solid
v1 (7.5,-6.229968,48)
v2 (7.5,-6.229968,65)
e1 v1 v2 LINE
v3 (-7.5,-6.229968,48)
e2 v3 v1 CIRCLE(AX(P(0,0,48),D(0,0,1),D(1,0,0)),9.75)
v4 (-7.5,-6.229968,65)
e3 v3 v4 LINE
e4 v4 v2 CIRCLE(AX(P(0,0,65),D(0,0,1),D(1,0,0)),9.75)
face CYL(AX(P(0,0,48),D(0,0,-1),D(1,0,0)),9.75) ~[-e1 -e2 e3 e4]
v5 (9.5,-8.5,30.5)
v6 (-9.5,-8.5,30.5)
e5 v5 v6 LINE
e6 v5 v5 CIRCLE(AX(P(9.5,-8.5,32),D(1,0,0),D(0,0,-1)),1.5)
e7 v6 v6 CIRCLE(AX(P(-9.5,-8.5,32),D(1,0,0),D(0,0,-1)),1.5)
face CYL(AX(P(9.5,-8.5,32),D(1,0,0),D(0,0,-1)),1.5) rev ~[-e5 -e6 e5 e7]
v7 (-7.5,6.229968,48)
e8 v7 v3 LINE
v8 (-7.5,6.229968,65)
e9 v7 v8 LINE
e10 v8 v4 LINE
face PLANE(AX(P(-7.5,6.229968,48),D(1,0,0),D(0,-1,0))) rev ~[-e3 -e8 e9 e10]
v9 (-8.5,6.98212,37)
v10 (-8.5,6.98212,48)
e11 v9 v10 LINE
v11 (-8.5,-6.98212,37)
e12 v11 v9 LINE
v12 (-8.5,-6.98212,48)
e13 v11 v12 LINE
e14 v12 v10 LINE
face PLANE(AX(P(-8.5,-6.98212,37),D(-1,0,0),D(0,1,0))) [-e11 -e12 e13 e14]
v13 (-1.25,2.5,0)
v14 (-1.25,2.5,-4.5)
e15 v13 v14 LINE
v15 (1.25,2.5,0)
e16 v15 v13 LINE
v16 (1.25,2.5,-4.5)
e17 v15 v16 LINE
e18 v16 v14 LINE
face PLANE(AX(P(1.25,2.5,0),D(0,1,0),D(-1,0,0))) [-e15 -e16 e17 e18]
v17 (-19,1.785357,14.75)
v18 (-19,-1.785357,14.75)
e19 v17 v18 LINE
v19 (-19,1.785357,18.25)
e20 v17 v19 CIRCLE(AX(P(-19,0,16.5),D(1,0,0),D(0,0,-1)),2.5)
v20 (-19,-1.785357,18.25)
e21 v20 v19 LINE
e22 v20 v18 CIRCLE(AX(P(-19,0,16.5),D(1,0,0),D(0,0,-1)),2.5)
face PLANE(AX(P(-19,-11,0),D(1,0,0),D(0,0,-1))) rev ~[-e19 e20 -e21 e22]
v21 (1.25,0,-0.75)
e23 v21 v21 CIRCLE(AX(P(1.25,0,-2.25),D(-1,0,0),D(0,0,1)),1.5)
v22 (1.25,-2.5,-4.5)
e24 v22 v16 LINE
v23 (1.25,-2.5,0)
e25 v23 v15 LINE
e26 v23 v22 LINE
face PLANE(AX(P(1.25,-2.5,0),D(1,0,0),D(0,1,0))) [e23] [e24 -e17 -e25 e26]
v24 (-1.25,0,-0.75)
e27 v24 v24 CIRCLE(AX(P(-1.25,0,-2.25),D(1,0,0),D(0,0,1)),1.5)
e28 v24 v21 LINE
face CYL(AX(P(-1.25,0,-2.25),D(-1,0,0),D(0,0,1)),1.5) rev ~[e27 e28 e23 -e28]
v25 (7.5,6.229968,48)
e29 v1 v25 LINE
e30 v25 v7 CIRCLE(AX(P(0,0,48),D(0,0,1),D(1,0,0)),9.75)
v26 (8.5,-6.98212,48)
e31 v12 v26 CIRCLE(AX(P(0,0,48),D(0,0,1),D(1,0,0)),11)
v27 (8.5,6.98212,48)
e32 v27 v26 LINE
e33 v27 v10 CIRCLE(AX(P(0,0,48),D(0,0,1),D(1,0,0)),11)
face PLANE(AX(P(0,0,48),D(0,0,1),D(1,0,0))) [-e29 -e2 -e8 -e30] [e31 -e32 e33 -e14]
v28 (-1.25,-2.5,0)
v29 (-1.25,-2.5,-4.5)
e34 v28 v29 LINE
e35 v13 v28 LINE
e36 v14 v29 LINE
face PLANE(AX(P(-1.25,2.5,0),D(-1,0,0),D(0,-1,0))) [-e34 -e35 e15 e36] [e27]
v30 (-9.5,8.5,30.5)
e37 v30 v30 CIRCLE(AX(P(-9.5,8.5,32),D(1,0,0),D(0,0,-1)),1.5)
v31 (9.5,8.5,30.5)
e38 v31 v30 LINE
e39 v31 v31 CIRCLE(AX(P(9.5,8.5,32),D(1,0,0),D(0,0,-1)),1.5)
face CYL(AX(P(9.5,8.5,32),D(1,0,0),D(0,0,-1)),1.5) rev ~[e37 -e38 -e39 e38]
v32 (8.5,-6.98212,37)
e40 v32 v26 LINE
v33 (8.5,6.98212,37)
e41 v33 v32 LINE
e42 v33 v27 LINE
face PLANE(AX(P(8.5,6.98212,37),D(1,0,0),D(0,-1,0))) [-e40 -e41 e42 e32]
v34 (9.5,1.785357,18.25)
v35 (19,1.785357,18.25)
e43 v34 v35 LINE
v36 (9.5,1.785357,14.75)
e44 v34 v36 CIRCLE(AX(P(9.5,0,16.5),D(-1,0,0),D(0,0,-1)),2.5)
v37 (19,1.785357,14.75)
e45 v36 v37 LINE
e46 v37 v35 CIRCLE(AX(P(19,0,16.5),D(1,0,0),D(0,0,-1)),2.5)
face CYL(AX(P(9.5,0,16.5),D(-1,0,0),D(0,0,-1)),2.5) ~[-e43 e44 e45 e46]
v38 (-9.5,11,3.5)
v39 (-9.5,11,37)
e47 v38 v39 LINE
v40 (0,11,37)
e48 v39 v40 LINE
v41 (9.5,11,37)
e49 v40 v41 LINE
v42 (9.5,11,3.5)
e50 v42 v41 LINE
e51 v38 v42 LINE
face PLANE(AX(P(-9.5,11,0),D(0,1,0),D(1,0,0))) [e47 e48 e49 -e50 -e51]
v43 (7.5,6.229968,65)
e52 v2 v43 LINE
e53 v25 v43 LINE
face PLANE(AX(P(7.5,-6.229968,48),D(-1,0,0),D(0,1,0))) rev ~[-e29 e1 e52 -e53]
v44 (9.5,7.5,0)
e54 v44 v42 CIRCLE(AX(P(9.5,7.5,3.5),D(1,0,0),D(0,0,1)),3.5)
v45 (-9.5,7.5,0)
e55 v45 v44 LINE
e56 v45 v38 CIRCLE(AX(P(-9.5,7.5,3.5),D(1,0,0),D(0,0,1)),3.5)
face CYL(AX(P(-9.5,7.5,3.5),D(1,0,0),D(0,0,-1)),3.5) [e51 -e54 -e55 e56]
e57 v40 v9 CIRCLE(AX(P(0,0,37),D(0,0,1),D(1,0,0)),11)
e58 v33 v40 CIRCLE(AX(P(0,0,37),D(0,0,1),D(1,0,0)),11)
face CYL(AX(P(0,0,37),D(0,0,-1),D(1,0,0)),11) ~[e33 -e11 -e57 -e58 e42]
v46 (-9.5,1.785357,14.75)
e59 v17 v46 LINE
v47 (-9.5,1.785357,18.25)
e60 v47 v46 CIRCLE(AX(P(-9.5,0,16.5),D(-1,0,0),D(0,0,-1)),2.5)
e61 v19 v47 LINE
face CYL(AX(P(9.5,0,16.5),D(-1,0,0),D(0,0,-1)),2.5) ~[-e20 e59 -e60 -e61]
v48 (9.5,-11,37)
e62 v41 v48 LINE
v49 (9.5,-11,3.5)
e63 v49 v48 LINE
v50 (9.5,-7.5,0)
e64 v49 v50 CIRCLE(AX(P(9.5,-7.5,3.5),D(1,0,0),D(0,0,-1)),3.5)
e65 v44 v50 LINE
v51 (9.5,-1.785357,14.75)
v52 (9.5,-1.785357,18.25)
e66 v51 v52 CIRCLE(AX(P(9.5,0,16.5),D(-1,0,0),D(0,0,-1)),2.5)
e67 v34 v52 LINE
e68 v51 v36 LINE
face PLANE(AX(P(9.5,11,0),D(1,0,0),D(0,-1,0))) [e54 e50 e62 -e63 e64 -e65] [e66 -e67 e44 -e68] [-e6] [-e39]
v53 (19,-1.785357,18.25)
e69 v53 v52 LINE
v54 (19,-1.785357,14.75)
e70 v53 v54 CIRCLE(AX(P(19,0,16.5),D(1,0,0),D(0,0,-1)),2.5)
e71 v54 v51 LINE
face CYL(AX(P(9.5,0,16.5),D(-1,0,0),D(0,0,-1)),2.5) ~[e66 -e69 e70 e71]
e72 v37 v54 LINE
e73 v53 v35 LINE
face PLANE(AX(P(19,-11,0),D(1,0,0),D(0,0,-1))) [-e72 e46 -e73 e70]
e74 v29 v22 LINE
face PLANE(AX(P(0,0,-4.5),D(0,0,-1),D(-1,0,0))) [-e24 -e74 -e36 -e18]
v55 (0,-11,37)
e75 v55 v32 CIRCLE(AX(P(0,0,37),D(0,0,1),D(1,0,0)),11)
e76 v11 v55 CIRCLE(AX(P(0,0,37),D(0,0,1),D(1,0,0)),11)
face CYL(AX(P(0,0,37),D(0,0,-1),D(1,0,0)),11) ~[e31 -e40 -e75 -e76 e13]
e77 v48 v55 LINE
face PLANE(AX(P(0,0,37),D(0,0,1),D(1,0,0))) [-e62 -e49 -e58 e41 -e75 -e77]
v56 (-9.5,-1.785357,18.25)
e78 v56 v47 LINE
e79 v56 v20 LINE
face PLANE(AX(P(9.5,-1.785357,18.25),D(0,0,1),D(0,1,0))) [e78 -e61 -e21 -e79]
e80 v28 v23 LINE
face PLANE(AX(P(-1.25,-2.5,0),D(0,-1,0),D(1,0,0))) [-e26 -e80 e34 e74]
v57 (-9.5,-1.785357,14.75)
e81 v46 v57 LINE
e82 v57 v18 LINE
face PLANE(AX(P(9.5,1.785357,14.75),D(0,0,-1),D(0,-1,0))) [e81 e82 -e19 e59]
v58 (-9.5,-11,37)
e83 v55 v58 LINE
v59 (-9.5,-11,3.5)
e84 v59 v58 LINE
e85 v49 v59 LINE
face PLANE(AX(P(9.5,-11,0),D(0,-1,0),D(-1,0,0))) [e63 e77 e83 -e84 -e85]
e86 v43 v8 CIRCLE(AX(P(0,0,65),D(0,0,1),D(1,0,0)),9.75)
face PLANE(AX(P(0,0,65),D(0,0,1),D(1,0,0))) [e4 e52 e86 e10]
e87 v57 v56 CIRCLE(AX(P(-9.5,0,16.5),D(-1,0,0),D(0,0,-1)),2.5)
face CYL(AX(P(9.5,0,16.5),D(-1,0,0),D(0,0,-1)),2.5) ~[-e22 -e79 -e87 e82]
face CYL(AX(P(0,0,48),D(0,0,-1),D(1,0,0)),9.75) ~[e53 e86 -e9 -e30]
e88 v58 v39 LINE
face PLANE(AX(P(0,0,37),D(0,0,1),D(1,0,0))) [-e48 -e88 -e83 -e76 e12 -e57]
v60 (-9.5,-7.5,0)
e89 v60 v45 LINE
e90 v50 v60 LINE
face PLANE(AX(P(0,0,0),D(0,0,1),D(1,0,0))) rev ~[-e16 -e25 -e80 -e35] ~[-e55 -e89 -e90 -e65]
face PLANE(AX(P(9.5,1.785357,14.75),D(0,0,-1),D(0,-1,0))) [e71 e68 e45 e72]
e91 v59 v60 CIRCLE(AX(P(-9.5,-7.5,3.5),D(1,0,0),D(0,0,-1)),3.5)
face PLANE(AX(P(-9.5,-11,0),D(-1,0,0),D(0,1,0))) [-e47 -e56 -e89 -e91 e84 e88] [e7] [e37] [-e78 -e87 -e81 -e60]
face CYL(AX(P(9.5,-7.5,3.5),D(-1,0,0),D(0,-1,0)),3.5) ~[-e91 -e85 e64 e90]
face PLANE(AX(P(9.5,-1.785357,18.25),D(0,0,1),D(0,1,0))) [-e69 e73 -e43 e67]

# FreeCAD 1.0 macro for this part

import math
import FreeCAD as App
import Part
import Sketcher

V = App.Vector


def edges_at(feature, points):
    """Names of the edges that pass closest to the given points."""
    edges = feature.Shape.Edges
    near = lambda p: min(range(len(edges)), key=lambda i: edges[i].distToShape(Part.Vertex(*p))[0])
    return sorted({f"Edge{near(p) + 1}" for p in points})

doc = App.newDocument("Part")
body = doc.addObject("PartDesign::Body", "Body")

sketch1 = doc.addObject("Sketcher::SketchObject", "Sketch")
body.addObject(sketch1)
sketch1.AttachmentSupport = (doc.XY_Plane, [""])
sketch1.MapMode = "FlatFace"
sketch1.addGeometry([
    Part.LineSegment(V(-10, -11, 0), V(10, -11, 0)),
    Part.LineSegment(V(10, -11, 0), V(10, 11, 0)),
    Part.LineSegment(V(10, 11, 0), V(-10, 11, 0)),
    Part.LineSegment(V(-10, 11, 0), V(-10, -11, 0)),
], False)
sketch1.addConstraint([
    Sketcher.Constraint("Coincident", 0, 2, 1, 1),
    Sketcher.Constraint("Coincident", 1, 2, 2, 1),
    Sketcher.Constraint("Coincident", 2, 2, 3, 1),
    Sketcher.Constraint("Coincident", 3, 2, 0, 1),
    Sketcher.Constraint("Horizontal", 0),
    Sketcher.Constraint("Vertical", 1),
    Sketcher.Constraint("Horizontal", 2),
    Sketcher.Constraint("Vertical", 3),
    Sketcher.Constraint("Symmetric", 0, 2, 2, 2, -1, 1),
    Sketcher.Constraint("DistanceX", 0, 1, 0, 2, 19.0),
    Sketcher.Constraint("DistanceY", 1, 1, 1, 2, 22.0),
])
pad1 = doc.addObject("PartDesign::Pad", "Pad")
body.addObject(pad1)
pad1.Profile = sketch1
pad1.Length = 37

sketch2 = doc.addObject("Sketcher::SketchObject", "Sketch001")
body.addObject(sketch2)
sketch2.AttachmentSupport = (doc.XY_Plane, [""])
sketch2.MapMode = "FlatFace"
sketch2.AttachmentOffset = App.Placement(V(0, 0, 37), App.Rotation())
sketch2.addGeometry([
    Part.LineSegment(V(8, -7, 0), V(8, 7, 0)),
    Part.ArcOfCircle(Part.Circle(V(0, 0, 0), V(0, 0, 1), 11), math.radians(39), math.radians(141)),
    Part.LineSegment(V(-8, 7, 0), V(-8, -7, 0)),
    Part.ArcOfCircle(Part.Circle(V(0, 0, 0), V(0, 0, 1), 11), math.radians(-141), math.radians(-39)),
], False)
sketch2.addConstraint([
    Sketcher.Constraint("Coincident", 0, 2, 1, 1),
    Sketcher.Constraint("Coincident", 1, 2, 2, 1),
    Sketcher.Constraint("Coincident", 2, 2, 3, 1),
    Sketcher.Constraint("Coincident", 3, 2, 0, 1),
    Sketcher.Constraint("Vertical", 0),
    Sketcher.Constraint("Vertical", 2),
    Sketcher.Constraint("Coincident", 1, 3, -1, 1),
    Sketcher.Constraint("Coincident", 3, 3, -1, 1),
    Sketcher.Constraint("Equal", 1, 3),
    Sketcher.Constraint("Horizontal", 0, 2, 1, 2),
    Sketcher.Constraint("Radius", 1, 11.0),
    Sketcher.Constraint("DistanceX", 1, 2, 0, 2, 17.0),
])
pad2 = doc.addObject("PartDesign::Pad", "Pad001")
body.addObject(pad2)
pad2.Profile = sketch2
pad2.Length = 11

sketch3 = doc.addObject("Sketcher::SketchObject", "Sketch002")
body.addObject(sketch3)
sketch3.AttachmentSupport = (doc.YZ_Plane, [""])
sketch3.MapMode = "FlatFace"
sketch3.AttachmentOffset = App.Placement(V(0, 0, 9.5), App.Rotation())
sketch3.addGeometry([
    Part.Circle(V(8.5, 32, 0), V(0, 0, 1), 1.5),
    Part.Circle(V(-8.5, 32, 0), V(0, 0, 1), 1.5),
], False)
sketch3.addConstraint([
    Sketcher.Constraint("Equal", 0, 1),
    Sketcher.Constraint("Symmetric", 0, 3, 1, 3, -2),
    Sketcher.Constraint("Diameter", 0, 3.0),
    Sketcher.Constraint("DistanceY", -1, 1, 0, 3, 32.0),
    Sketcher.Constraint("DistanceX", 1, 3, 0, 3, 17.0),
])
pocket1 = doc.addObject("PartDesign::Pocket", "Pocket")
body.addObject(pocket1)
pocket1.Profile = sketch3
pocket1.Type = "ThroughAll"

sketch4 = doc.addObject("Sketcher::SketchObject", "Sketch003")
body.addObject(sketch4)
sketch4.AttachmentSupport = (doc.YZ_Plane, [""])
sketch4.MapMode = "FlatFace"
sketch4.AttachmentOffset = App.Placement(V(0, 0, 9.5), App.Rotation())
sketch4.addGeometry([
    Part.LineSegment(V(-1.8, 14.8, 0), V(1.8, 14.8, 0)),
    Part.ArcOfCircle(Part.Circle(V(0, 16.5, 0), V(0, 0, 1), 2.5), math.radians(-44), math.radians(44)),
    Part.LineSegment(V(1.8, 18.2, 0), V(-1.8, 18.2, 0)),
    Part.ArcOfCircle(Part.Circle(V(0, 16.5, 0), V(0, 0, 1), 2.5), math.radians(136), math.radians(224)),
], False)
sketch4.addConstraint([
    Sketcher.Constraint("Coincident", 0, 2, 1, 1),
    Sketcher.Constraint("Coincident", 1, 2, 2, 1),
    Sketcher.Constraint("Coincident", 2, 2, 3, 1),
    Sketcher.Constraint("Coincident", 3, 2, 0, 1),
    Sketcher.Constraint("Horizontal", 0),
    Sketcher.Constraint("Horizontal", 2),
    Sketcher.Constraint("Coincident", 3, 3, 1, 3),
    Sketcher.Constraint("Equal", 1, 3),
    Sketcher.Constraint("PointOnObject", 1, 3, -2),
    Sketcher.Constraint("Vertical", 0, 2, 1, 2),
    Sketcher.Constraint("Radius", 1, 2.5),
    Sketcher.Constraint("DistanceY", -1, 1, 1, 3, 16.5),
    Sketcher.Constraint("DistanceY", 0, 2, 1, 2, 3.5),
])
pad3 = doc.addObject("PartDesign::Pad", "Pad002")
body.addObject(pad3)
pad3.Profile = sketch4
pad3.Type = "TwoLengths"
pad3.Length = 9.5
pad3.Length2 = 28.5

sketch5 = doc.addObject("Sketcher::SketchObject", "Sketch004")
body.addObject(sketch5)
sketch5.AttachmentSupport = (doc.XY_Plane, [""])
sketch5.MapMode = "FlatFace"
sketch5.AttachmentOffset = App.Placement(V(0, 0, 48), App.Rotation())
sketch5.addGeometry([
    Part.LineSegment(V(8, -6, 0), V(8, 6, 0)),
    Part.ArcOfCircle(Part.Circle(V(0, 0, 0), V(0, 0, 1), 10), math.radians(40), math.radians(140)),
    Part.LineSegment(V(-8, 6, 0), V(-8, -6, 0)),
    Part.ArcOfCircle(Part.Circle(V(0, 0, 0), V(0, 0, 1), 10), math.radians(-140), math.radians(-40)),
], False)
sketch5.addConstraint([
    Sketcher.Constraint("Coincident", 0, 2, 1, 1),
    Sketcher.Constraint("Coincident", 1, 2, 2, 1),
    Sketcher.Constraint("Coincident", 2, 2, 3, 1),
    Sketcher.Constraint("Coincident", 3, 2, 0, 1),
    Sketcher.Constraint("Vertical", 0),
    Sketcher.Constraint("Vertical", 2),
    Sketcher.Constraint("Coincident", 1, 3, -1, 1),
    Sketcher.Constraint("Coincident", 3, 3, -1, 1),
    Sketcher.Constraint("Equal", 1, 3),
    Sketcher.Constraint("Horizontal", 0, 2, 1, 2),
    Sketcher.Constraint("Radius", 1, 9.75),
    Sketcher.Constraint("DistanceX", 1, 2, 0, 2, 15.0),
])
pad4 = doc.addObject("PartDesign::Pad", "Pad003")
body.addObject(pad4)
pad4.Profile = sketch5
pad4.Length = 17
doc.recompute()

fillet = doc.addObject("PartDesign::Fillet", "Fillet")
body.addObject(fillet)
fillet.Base = (pad4, edges_at(pad4, [(0, -11, 0), (0, 11, 0)]))
fillet.Radius = 3.5

sketch6 = doc.addObject("Sketcher::SketchObject", "Sketch005")
body.addObject(sketch6)
sketch6.AttachmentSupport = (doc.XY_Plane, [""])
sketch6.MapMode = "FlatFace"
sketch6.addGeometry([
    Part.LineSegment(V(-1.2, 2.5, 0), V(1.2, 2.5, 0)),
    Part.LineSegment(V(1.2, 2.5, 0), V(1.2, -2.5, 0)),
    Part.LineSegment(V(1.2, -2.5, 0), V(-1.2, -2.5, 0)),
    Part.LineSegment(V(-1.2, -2.5, 0), V(-1.2, 2.5, 0)),
], False)
sketch6.addConstraint([
    Sketcher.Constraint("Coincident", 0, 2, 1, 1),
    Sketcher.Constraint("Coincident", 1, 2, 2, 1),
    Sketcher.Constraint("Coincident", 2, 2, 3, 1),
    Sketcher.Constraint("Coincident", 3, 2, 0, 1),
    Sketcher.Constraint("Horizontal", 0),
    Sketcher.Constraint("Vertical", 1),
    Sketcher.Constraint("Horizontal", 2),
    Sketcher.Constraint("Vertical", 3),
    Sketcher.Constraint("Symmetric", 0, 2, 2, 2, -1, 1),
    Sketcher.Constraint("DistanceY", 1, 2, 1, 1, 5.0),
    Sketcher.Constraint("DistanceX", 0, 1, 0, 2, 2.5),
])
pad5 = doc.addObject("PartDesign::Pad", "Pad004")
body.addObject(pad5)
pad5.Profile = sketch6
pad5.Length = 4.5
pad5.Reversed = True

sketch7 = doc.addObject("Sketcher::SketchObject", "Sketch006")
body.addObject(sketch7)
sketch7.AttachmentSupport = (doc.YZ_Plane, [""])
sketch7.MapMode = "FlatFace"
sketch7.AttachmentOffset = App.Placement(V(0, 0, -1.25), App.Rotation())
sketch7.addGeometry(Part.Circle(V(0, -2.2, 0), V(0, 0, 1), 1.5), False)
sketch7.addConstraint([
    Sketcher.Constraint("PointOnObject", 0, 3, -2),
    Sketcher.Constraint("Diameter", 0, 3.0),
    Sketcher.Constraint("DistanceY", 0, 3, -1, 1, 2.25),
])
pocket2 = doc.addObject("PartDesign::Pocket", "Pocket001")
body.addObject(pocket2)
pocket2.Profile = sketch7
pocket2.Type = "ThroughAll"
pocket2.Reversed = True

doc.recompute()
